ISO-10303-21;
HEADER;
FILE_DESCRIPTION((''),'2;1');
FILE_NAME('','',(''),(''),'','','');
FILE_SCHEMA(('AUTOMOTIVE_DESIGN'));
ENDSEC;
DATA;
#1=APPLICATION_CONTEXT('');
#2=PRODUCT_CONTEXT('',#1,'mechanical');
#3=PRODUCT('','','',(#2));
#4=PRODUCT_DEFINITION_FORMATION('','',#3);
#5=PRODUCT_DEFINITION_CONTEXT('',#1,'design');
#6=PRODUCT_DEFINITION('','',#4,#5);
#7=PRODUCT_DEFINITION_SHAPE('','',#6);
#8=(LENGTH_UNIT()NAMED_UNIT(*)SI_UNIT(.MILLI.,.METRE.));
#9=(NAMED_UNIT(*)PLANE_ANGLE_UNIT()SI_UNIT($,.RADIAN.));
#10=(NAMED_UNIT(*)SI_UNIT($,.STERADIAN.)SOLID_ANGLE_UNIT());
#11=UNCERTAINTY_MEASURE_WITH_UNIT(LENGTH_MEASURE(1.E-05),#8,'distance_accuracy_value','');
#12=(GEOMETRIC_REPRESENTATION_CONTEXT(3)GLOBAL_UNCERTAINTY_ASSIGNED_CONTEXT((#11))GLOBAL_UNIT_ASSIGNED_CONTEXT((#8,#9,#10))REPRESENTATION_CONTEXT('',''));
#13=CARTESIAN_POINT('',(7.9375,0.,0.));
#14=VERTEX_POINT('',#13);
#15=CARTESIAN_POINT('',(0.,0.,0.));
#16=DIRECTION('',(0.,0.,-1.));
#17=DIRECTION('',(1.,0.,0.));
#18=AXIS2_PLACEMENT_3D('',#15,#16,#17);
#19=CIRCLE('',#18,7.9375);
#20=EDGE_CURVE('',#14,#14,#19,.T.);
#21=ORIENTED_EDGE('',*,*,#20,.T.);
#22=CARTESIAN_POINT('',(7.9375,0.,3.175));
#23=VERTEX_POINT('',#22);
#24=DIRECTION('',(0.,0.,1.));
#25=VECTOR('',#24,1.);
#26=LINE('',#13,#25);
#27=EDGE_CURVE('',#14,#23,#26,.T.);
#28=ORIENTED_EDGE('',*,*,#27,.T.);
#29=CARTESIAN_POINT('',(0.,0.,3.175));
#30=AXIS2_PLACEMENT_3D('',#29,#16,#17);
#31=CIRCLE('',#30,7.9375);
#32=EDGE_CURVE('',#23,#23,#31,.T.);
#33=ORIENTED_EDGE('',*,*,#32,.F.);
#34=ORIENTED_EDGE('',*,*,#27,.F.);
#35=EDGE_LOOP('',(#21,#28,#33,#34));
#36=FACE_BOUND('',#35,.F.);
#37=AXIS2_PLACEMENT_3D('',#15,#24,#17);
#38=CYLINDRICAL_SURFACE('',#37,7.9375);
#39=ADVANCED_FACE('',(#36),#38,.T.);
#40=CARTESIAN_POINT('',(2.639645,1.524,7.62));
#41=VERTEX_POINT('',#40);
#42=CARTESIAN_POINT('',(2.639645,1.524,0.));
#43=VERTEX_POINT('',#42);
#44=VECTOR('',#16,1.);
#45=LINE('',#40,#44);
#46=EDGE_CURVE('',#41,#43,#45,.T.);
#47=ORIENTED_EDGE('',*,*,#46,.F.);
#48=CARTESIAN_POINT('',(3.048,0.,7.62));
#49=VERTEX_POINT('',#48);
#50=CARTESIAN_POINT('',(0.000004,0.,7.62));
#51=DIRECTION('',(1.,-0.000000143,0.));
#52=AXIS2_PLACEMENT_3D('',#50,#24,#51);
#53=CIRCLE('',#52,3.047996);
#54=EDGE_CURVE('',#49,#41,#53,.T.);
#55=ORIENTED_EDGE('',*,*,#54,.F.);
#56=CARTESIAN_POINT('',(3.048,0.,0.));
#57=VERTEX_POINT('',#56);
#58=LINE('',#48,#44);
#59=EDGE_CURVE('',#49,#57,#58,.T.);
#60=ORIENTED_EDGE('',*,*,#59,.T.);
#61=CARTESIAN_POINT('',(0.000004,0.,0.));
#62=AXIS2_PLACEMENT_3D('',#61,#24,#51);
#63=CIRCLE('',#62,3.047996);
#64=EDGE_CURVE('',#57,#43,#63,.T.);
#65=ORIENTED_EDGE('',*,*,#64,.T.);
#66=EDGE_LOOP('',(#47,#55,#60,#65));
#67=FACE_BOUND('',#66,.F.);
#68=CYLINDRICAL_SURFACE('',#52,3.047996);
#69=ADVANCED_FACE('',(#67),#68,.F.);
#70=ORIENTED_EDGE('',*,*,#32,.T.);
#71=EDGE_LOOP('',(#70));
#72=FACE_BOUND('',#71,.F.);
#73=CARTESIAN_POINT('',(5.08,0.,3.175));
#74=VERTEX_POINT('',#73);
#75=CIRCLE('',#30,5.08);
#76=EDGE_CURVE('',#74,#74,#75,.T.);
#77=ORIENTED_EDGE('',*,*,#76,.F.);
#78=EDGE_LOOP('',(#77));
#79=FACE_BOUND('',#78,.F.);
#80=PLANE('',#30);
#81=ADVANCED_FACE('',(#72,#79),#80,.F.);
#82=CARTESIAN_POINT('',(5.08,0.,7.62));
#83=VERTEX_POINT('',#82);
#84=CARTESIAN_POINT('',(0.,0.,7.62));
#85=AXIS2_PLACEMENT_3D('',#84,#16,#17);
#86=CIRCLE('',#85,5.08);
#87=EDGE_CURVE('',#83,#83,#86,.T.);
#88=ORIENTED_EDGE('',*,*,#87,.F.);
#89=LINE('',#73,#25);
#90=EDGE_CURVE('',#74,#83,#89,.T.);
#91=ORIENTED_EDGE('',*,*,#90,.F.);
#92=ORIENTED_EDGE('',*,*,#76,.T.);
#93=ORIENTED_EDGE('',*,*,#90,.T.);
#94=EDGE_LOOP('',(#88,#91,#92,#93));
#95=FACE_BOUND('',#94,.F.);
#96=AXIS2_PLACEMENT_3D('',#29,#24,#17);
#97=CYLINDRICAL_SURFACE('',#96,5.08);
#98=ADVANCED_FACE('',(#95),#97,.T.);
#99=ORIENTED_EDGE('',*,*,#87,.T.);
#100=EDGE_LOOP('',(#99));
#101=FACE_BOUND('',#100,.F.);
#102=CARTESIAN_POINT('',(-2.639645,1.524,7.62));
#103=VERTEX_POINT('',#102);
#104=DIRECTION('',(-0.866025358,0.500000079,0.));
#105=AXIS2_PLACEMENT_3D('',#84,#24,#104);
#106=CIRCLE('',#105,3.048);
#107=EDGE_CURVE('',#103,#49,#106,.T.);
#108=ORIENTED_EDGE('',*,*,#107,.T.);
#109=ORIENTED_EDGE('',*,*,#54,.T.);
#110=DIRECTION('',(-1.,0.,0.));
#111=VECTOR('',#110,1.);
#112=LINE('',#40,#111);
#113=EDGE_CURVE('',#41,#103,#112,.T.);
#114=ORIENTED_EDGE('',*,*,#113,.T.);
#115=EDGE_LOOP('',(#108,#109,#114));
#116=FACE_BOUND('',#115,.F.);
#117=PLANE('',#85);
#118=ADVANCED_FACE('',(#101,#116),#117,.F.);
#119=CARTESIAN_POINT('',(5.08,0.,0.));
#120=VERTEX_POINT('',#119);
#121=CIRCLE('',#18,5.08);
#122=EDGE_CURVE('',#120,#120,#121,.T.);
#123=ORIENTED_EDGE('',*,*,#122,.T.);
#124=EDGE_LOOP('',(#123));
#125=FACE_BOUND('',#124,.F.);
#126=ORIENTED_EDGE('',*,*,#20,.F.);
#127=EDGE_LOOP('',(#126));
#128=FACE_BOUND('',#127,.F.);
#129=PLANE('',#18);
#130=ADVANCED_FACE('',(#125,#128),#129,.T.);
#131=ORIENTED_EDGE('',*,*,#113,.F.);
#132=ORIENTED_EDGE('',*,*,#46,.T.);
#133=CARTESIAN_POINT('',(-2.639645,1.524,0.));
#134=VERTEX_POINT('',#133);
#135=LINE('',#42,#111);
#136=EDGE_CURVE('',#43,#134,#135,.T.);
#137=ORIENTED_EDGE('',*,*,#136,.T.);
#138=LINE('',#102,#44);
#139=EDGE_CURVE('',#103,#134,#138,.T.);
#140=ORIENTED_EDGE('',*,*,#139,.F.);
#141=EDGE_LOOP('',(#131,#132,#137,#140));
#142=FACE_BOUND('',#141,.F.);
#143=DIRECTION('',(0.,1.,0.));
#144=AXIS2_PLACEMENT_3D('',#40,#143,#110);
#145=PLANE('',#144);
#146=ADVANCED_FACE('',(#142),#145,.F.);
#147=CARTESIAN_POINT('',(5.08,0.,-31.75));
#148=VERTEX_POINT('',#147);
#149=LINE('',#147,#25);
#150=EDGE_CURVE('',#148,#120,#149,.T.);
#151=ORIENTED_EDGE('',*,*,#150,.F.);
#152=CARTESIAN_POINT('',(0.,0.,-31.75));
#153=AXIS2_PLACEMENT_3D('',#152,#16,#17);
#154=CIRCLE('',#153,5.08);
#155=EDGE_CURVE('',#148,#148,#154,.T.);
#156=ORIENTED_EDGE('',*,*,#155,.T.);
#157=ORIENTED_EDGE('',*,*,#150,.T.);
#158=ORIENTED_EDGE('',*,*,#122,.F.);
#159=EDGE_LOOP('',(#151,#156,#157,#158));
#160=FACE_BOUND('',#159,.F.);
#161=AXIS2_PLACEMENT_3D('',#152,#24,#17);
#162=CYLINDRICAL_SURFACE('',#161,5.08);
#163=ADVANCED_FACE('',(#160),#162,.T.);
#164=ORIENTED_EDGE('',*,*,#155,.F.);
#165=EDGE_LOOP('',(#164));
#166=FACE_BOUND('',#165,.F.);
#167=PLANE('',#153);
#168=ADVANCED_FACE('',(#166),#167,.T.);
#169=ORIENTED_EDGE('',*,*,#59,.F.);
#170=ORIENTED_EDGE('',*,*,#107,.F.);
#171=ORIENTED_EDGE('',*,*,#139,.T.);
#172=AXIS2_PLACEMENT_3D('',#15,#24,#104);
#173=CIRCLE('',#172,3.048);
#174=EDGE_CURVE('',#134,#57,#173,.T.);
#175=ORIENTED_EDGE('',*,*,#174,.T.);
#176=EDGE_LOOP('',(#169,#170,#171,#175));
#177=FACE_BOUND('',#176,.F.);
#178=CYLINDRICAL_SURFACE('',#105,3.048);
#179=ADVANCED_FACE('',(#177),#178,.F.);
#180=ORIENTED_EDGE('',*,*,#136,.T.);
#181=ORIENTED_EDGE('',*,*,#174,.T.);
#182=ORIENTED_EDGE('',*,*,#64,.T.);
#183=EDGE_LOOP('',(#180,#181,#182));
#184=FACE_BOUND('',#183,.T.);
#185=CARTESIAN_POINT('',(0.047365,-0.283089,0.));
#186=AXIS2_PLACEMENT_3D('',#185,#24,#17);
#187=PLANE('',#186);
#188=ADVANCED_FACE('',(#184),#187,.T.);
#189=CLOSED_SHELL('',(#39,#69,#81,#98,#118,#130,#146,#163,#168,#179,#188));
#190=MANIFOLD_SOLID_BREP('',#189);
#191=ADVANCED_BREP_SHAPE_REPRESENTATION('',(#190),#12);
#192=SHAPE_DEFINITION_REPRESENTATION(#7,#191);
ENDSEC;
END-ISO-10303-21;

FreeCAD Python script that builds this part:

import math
import FreeCAD as App
import Part
import Sketcher
from FreeCAD import Vector
Q = App.Units.Quantity


def add_polygon(sketch, points):
    """Adds a closed chain of lines whose ends are joined by coincident constraints."""
    first, n = sketch.GeometryCount, len(points)
    for a, b in zip(points, points[1:] + points[:1]):
        sketch.addGeometry(Part.LineSegment(App.Vector(*a, 0), App.Vector(*b, 0)), False)
    for i in range(n):
        sketch.addConstraint(Sketcher.Constraint("Coincident", first + i, 2, first + (i + 1) % n, 1))

doc = App.newDocument("Part")
body = doc.addObject("PartDesign::Body", "Body")

# Sketch on XZ plane
sketch1 = body.newObject("Sketcher::SketchObject", "Sketch")
sketch1.AttachmentSupport = (doc.getObject("XZ_Plane"), [""])
sketch1.MapMode = "FlatFace"
add_polygon(sketch1, [(5.1, 7.6), (0, 7.6), (0, -31.8), (5.1, -31.8), (5.1, 0), (7.9, 0), (7.9, 3.2), (5.1, 3.2)])  # lines 0-7
sketch1.addConstraint(Sketcher.Constraint("Horizontal", 0))
sketch1.addConstraint(Sketcher.Constraint("Vertical", 1))
sketch1.addConstraint(Sketcher.Constraint("Horizontal", 2))
sketch1.addConstraint(Sketcher.Constraint("Vertical", 3))
sketch1.addConstraint(Sketcher.Constraint("Horizontal", 4))
sketch1.addConstraint(Sketcher.Constraint("Vertical", 5))
sketch1.addConstraint(Sketcher.Constraint("Horizontal", 6))
sketch1.addConstraint(Sketcher.Constraint("Vertical", 7))
sketch1.addConstraint(Sketcher.Constraint("PointOnObject", 0, 2, -2))
sketch1.addConstraint(Sketcher.Constraint("PointOnObject", 3, 2, -1))
sketch1.addConstraint(Sketcher.Constraint("Vertical", 3, 2, 6, 2))
sketch1.addConstraint(Sketcher.Constraint("DistanceX", 0, 2, 0, 1, Q("0.2 in")))
sketch1.addConstraint(Sketcher.Constraint("DistanceY", 1, 2, 1, 1, Q("1.55 in")))
sketch1.addConstraint(Sketcher.Constraint("DistanceY", 3, 1, 3, 2, Q("1.25 in")))
sketch1.addConstraint(Sketcher.Constraint("DistanceY", 5, 1, 5, 2, Q("0.125 in")))
sketch1.addConstraint(Sketcher.Constraint("DistanceX", 4, 1, 4, 2, Q("0.1125 in")))
revolution = body.newObject("PartDesign::Revolution", "Revolution")
revolution.Profile = sketch1
revolution.ReferenceAxis = (sketch1, ["V_Axis"])
revolution.Angle = 360

# Sketch on XY plane
sketch2 = body.newObject("Sketcher::SketchObject", "Sketch001")
sketch2.AttachmentSupport = (doc.getObject("XY_Plane"), [""])
sketch2.MapMode = "FlatFace"
sketch2.AttachmentOffset = App.Placement(Vector(0, 0, 0.3 * 25.4), App.Rotation())
sketch2.addGeometry(Part.ArcOfCircle(Part.Circle(Vector(0, 0, 0), Vector(0, 0, 1), 3), math.radians(150), math.radians(360)), False)
sketch2.addGeometry(Part.ArcOfCircle(Part.Circle(Vector(0, 0, 0), Vector(0, 0, 1), 3), math.radians(0), math.radians(30)), False)
sketch2.addGeometry(Part.LineSegment(Vector(2.6, 1.5, 0), Vector(-2.6, 1.5, 0)), False)
sketch2.addConstraint(Sketcher.Constraint("Tangent", 0, 2, 1, 1))
sketch2.addConstraint(Sketcher.Constraint("Coincident", 1, 2, 2, 1))
sketch2.addConstraint(Sketcher.Constraint("Coincident", 2, 2, 0, 1))
sketch2.addConstraint(Sketcher.Constraint("Horizontal", 2))
sketch2.addConstraint(Sketcher.Constraint("Coincident", 0, 3, -1, 1))
sketch2.addConstraint(Sketcher.Constraint("PointOnObject", 0, 2, -1))
sketch2.addConstraint(Sketcher.Constraint("Radius", 0, Q("0.12 in")))
sketch2.addConstraint(Sketcher.Constraint("Radius", 1, Q("0.1199998 in")))
sketch2.addConstraint(Sketcher.Constraint("DistanceY", -1, 1, 1, 2, Q("0.06 in")))
pocket1 = body.newObject("PartDesign::Pocket", "Pocket")
pocket1.Profile = sketch2
pocket1.Length = Q("0.3 in")

doc.recompute()
